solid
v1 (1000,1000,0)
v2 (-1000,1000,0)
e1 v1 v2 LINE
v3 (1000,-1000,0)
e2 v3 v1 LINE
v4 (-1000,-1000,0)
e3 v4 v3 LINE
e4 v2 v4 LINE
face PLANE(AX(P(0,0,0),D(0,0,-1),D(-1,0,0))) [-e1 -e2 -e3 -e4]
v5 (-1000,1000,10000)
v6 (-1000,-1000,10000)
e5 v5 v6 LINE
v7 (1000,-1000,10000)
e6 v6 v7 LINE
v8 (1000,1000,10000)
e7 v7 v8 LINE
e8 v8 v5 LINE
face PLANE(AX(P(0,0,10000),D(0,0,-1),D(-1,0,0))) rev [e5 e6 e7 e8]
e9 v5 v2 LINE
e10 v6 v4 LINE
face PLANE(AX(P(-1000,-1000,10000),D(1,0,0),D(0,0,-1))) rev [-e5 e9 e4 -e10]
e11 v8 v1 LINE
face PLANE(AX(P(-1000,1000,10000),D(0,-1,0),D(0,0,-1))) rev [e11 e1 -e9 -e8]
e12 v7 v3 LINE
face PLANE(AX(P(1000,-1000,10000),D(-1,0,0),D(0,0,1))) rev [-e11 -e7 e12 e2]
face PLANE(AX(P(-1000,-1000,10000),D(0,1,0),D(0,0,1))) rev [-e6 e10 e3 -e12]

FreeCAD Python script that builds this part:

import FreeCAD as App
import Part
import Sketcher
Q = App.Units.Quantity

doc = App.newDocument("Part")
body = doc.addObject("PartDesign::Body", "Body")

# Sketch on XY plane
sketch1 = doc.addObject("Sketcher::SketchObject", "Sketch")
body.addObject(sketch1)
sketch1.AttachmentSupport = (doc.XY_Plane, [""])
sketch1.MapMode = "FlatFace"
sketch1.addGeometry(Part.LineSegment(App.Vector(-1000, 1000, 0), App.Vector(-1000, -1000, 0)), False)
sketch1.addGeometry(Part.LineSegment(App.Vector(-1000, -1000, 0), App.Vector(1000, -1000, 0)), False)
sketch1.addGeometry(Part.LineSegment(App.Vector(1000, -1000, 0), App.Vector(1000, 1000, 0)), False)
sketch1.addGeometry(Part.LineSegment(App.Vector(1000, 1000, 0), App.Vector(-1000, 1000, 0)), False)
sketch1.addConstraint(Sketcher.Constraint("Coincident", 0, 2, 1, 1))
sketch1.addConstraint(Sketcher.Constraint("Coincident", 1, 2, 2, 1))
sketch1.addConstraint(Sketcher.Constraint("Coincident", 2, 2, 3, 1))
sketch1.addConstraint(Sketcher.Constraint("Coincident", 3, 2, 0, 1))
sketch1.addConstraint(Sketcher.Constraint("Vertical", 0))
sketch1.addConstraint(Sketcher.Constraint("Horizontal", 1))
sketch1.addConstraint(Sketcher.Constraint("Vertical", 2))
sketch1.addConstraint(Sketcher.Constraint("Horizontal", 3))
sketch1.addConstraint(Sketcher.Constraint("Symmetric", 0, 2, 2, 2, -1, 1))
sketch1.addConstraint(Sketcher.Constraint("Equal", 3, 0))
sketch1.addConstraint(Sketcher.Constraint("DistanceX", 1, 1, 1, 2, Q("2000 mm")))
pad1 = doc.addObject("PartDesign::Pad", "Pad")
body.addObject(pad1)
pad1.Profile = sketch1
pad1.Length = 10000

doc.recompute()
